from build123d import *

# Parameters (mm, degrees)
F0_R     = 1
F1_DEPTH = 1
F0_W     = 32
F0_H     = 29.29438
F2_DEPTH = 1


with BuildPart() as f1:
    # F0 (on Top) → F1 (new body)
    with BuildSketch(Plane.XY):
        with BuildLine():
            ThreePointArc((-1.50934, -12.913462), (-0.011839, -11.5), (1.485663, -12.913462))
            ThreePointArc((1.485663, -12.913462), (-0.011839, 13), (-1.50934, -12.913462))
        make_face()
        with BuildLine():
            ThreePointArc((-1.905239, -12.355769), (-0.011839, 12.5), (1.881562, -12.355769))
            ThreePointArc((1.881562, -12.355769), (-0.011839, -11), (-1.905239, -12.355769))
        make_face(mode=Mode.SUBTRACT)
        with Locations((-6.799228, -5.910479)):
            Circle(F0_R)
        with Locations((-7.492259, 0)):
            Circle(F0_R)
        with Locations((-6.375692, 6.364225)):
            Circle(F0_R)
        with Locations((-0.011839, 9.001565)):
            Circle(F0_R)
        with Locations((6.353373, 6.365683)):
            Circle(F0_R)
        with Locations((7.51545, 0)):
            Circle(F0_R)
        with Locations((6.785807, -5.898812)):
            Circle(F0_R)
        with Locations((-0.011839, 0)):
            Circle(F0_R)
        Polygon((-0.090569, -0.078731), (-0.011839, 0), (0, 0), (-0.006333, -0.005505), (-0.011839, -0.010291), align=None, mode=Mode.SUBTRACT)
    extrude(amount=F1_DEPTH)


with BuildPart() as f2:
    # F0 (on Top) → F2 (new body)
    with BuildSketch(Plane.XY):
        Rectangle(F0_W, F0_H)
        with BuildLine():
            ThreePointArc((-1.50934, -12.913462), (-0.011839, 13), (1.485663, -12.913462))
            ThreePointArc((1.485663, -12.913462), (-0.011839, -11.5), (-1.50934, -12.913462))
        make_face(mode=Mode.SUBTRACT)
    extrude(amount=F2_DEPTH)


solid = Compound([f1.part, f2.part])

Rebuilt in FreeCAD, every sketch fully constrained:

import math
import FreeCAD as App
import Part
import Sketcher
from FreeCAD import Vector
Q = App.Units.Quantity

doc = App.newDocument("Part")
body = doc.addObject("PartDesign::Body", "Body")
body.AllowCompound = True

# Sketch on XY plane
sketch1 = doc.addObject("Sketcher::SketchObject", "Sketch")
body.addObject(sketch1)
sketch1.AttachmentSupport = (doc.XY_Plane, [""])
sketch1.MapMode = "FlatFace"
sketch1.addGeometry([
    Part.ArcOfCircle(Part.Circle(Vector(-0.011839, -13, 0), Vector(0, 0, 1), 1.5), math.radians(3.307339), math.radians(176.692661)),  # 0
    Part.ArcOfCircle(Part.Circle(Vector(-0.011839, 0, 0), Vector(0, 0, 1), 13), math.radians(-83.385276), math.radians(263.385276)),  # 1
    Part.ArcOfCircle(Part.Circle(Vector(-0.011839, -13, 0), Vector(0, 0, 1), 2), math.radians(18.790902), math.radians(161.209098)),  # 2
    Part.ArcOfCircle(Part.Circle(Vector(-0.011839, 0, 0), Vector(0, 0, 1), 12.5), math.radians(-81.287757), math.radians(261.287757)),  # 3
    Part.Circle(Vector(-6.799228, -5.910479, 0), Vector(0, 0, 1), 1),  # 4
    Part.Circle(Vector(-7.492259, 0, 0), Vector(0, 0, 1), 1),  # 5
    Part.Circle(Vector(-6.375692, 6.364225, 0), Vector(0, 0, 1), 1),  # 6
    Part.Circle(Vector(-0.011839, 9.001565, 0), Vector(0, 0, 1), 1),  # 7
    Part.Circle(Vector(6.353373, 6.365683, 0), Vector(0, 0, 1), 1),  # 8
    Part.Circle(Vector(7.51545, 0, 0), Vector(0, 0, 1), 1),  # 9
    Part.Circle(Vector(6.785807, -5.898812, 0), Vector(0, 0, 1), 1),  # 10
    Part.Circle(Vector(-0.011839, 0, 0), Vector(0, 0, 1), 1),  # 11
    Part.LineSegment(Vector(-0.011839, -0.010291, 0), Vector(-0.090569, -0.078731, 0)),  # 12
    Part.LineSegment(Vector(-0.090569, -0.078731, 0), Vector(-0.011839, 0, 0)),  # 13
    Part.LineSegment(Vector(-0.011839, 0, 0), Vector(0, 0, 0)),  # 14
    Part.LineSegment(Vector(0, 0, 0), Vector(-0.006333, -0.005505, 0)),  # 15
    Part.LineSegment(Vector(-0.006333, -0.005505, 0), Vector(-0.011839, -0.010291, 0)),  # 16
], False)
sketch1.addConstraint([
    Sketcher.Constraint("Coincident", 0, 1, 1, 1),
    Sketcher.Constraint("Coincident", 1, 2, 0, 2),
    Sketcher.Constraint("Coincident", 2, 1, 3, 1),
    Sketcher.Constraint("Coincident", 3, 2, 2, 2),
    Sketcher.Constraint("Coincident", 12, 2, 13, 1),
    Sketcher.Constraint("Coincident", 13, 2, 14, 1),
    Sketcher.Constraint("Coincident", 14, 2, 15, 1),
    Sketcher.Constraint("Coincident", 15, 2, 16, 1),
    Sketcher.Constraint("Coincident", 16, 2, 12, 1),
    Sketcher.Constraint("Horizontal", 14),
    Sketcher.Constraint("Coincident", 14, 2, -1, 1),
    Sketcher.Constraint("Coincident", 2, 3, 0, 3),
    Sketcher.Constraint("Coincident", 3, 3, 1, 3),
    Sketcher.Constraint("Coincident", 11, 3, 1, 3),
    Sketcher.Constraint("Coincident", 13, 2, 1, 3),
    Sketcher.Constraint("Equal", 4, 5),
    Sketcher.Constraint("Equal", 5, 6),
    Sketcher.Constraint("Equal", 6, 7),
    Sketcher.Constraint("Equal", 7, 8),
    Sketcher.Constraint("Equal", 8, 9),
    Sketcher.Constraint("Equal", 9, 10),
    Sketcher.Constraint("Equal", 10, 11),
    Sketcher.Constraint("PointOnObject", 5, 3, -1),
    Sketcher.Constraint("PointOnObject", 9, 3, -1),
    Sketcher.Constraint("Horizontal", 0, 1, 1, 2),
    Sketcher.Constraint("Vertical", 3, 3, 7, 3),
    Sketcher.Constraint("Vertical", 13, 2, 16, 2),
    Sketcher.Constraint("Diameter", 4, Q("2 mm")),
    Sketcher.Constraint("Radius", 1, Q("13 mm")),
    Sketcher.Constraint("Radius", 2, Q("2 mm")),
    Sketcher.Constraint("Radius", 0, Q("1.5 mm")),
    Sketcher.Constraint("Radius", 3, Q("12.5 mm")),
    Sketcher.Constraint("DistanceY", 0, 3, -1, 1, Q("13 mm")),
    Sketcher.Constraint("DistanceX", 14, 1, 14, 2, Q("0.011839 mm")),
    Sketcher.Constraint("Distance", 12, Q("0.104319 mm")),
    Sketcher.Constraint("Distance", 13, Q("0.111342 mm")),
    Sketcher.Constraint("Distance", 15, Q("0.008391 mm")),
    Sketcher.Constraint("DistanceX", 4, 3, -1, 1, Q("6.799228 mm")),
    Sketcher.Constraint("DistanceY", 4, 3, -1, 1, Q("5.910479 mm")),
    Sketcher.Constraint("DistanceX", 5, 3, -1, 1, Q("7.492259 mm")),
    Sketcher.Constraint("DistanceX", -1, 1, 9, 3, Q("7.51545 mm")),
    Sketcher.Constraint("DistanceX", 12, 2, -1, 1, Q("0.090569 mm")),
    Sketcher.Constraint("DistanceY", 6, 3, 7, 3, Q("2.63734 mm")),
    Sketcher.Constraint("DistanceY", 8, 3, 7, 3, Q("2.635882 mm")),
    Sketcher.Constraint("DistanceX", 3, 3, 8, 3, Q("6.365212 mm")),
    Sketcher.Constraint("DistanceY", 10, 3, 1, 3, Q("5.898812 mm")),
    Sketcher.Constraint("DistanceX", 6, 3, -1, 1, Q("6.375692 mm")),
    Sketcher.Constraint("DistanceY", -1, 1, 6, 3, Q("6.364225 mm")),
    Sketcher.Constraint("DistanceX", -1, 1, 10, 3, Q("6.785807 mm")),
    Sketcher.Constraint("DistanceX", 15, 2, -1, 1, Q("0.006333 mm")),
])
pad1 = doc.addObject("PartDesign::Pad", "Pad")
body.addObject(pad1)
pad1.Profile = sketch1
pad1.Length = 1
body2 = doc.addObject("PartDesign::Body", "Body001")

# Sketch on XY plane
sketch2 = doc.addObject("Sketcher::SketchObject", "Sketch001")
body2.addObject(sketch2)
sketch2.AttachmentSupport = (doc.getObject("XY_Plane001"), [""])
sketch2.MapMode = "FlatFace"
sketch2.addGeometry([
    Part.LineSegment(Vector(-16, 14.64719, 0), Vector(-16, -14.64719, 0)),  # 0
    Part.LineSegment(Vector(-16, -14.64719, 0), Vector(16, -14.64719, 0)),  # 1
    Part.LineSegment(Vector(16, -14.64719, 0), Vector(16, 14.64719, 0)),  # 2
    Part.LineSegment(Vector(16, 14.64719, 0), Vector(-16, 14.64719, 0)),  # 3
    Part.ArcOfCircle(Part.Circle(Vector(-0.011839, -13, 0), Vector(0, 0, 1), 1.5), math.radians(3.307339), math.radians(176.692661)),  # 4
    Part.ArcOfCircle(Part.Circle(Vector(-0.011839, 0, 0), Vector(0, 0, 1), 13), math.radians(-83.385276), math.radians(263.385276)),  # 5
], False)
sketch2.addConstraint([
    Sketcher.Constraint("Coincident", 0, 2, 1, 1),
    Sketcher.Constraint("Coincident", 1, 2, 2, 1),
    Sketcher.Constraint("Coincident", 2, 2, 3, 1),
    Sketcher.Constraint("Coincident", 3, 2, 0, 1),
    Sketcher.Constraint("Coincident", 4, 1, 5, 1),
    Sketcher.Constraint("Coincident", 5, 2, 4, 2),
    Sketcher.Constraint("Vertical", 0),
    Sketcher.Constraint("Horizontal", 1),
    Sketcher.Constraint("Vertical", 2),
    Sketcher.Constraint("Horizontal", 3),
    Sketcher.Constraint("Symmetric", 0, 2, 2, 2, -1, 1),
    Sketcher.Constraint("PointOnObject", 5, 3, -1),
    Sketcher.Constraint("Horizontal", 4, 1, 5, 2),
    Sketcher.Constraint("Radius", 5, Q("13 mm")),
    Sketcher.Constraint("Radius", 4, Q("1.5 mm")),
    Sketcher.Constraint("DistanceX", 1, 1, 1, 2, Q("32 mm")),
    Sketcher.Constraint("DistanceY", 4, 3, -1, 1, Q("13 mm")),
    Sketcher.Constraint("DistanceY", 0, 2, 0, 1, Q("29.29438 mm")),
    Sketcher.Constraint("DistanceX", 4, 3, -1, 1, Q("0.011839 mm")),
])
pad2 = doc.addObject("PartDesign::Pad", "Pad001")
body2.addObject(pad2)
pad2.Profile = sketch2
pad2.Length = 1

doc.recompute()
